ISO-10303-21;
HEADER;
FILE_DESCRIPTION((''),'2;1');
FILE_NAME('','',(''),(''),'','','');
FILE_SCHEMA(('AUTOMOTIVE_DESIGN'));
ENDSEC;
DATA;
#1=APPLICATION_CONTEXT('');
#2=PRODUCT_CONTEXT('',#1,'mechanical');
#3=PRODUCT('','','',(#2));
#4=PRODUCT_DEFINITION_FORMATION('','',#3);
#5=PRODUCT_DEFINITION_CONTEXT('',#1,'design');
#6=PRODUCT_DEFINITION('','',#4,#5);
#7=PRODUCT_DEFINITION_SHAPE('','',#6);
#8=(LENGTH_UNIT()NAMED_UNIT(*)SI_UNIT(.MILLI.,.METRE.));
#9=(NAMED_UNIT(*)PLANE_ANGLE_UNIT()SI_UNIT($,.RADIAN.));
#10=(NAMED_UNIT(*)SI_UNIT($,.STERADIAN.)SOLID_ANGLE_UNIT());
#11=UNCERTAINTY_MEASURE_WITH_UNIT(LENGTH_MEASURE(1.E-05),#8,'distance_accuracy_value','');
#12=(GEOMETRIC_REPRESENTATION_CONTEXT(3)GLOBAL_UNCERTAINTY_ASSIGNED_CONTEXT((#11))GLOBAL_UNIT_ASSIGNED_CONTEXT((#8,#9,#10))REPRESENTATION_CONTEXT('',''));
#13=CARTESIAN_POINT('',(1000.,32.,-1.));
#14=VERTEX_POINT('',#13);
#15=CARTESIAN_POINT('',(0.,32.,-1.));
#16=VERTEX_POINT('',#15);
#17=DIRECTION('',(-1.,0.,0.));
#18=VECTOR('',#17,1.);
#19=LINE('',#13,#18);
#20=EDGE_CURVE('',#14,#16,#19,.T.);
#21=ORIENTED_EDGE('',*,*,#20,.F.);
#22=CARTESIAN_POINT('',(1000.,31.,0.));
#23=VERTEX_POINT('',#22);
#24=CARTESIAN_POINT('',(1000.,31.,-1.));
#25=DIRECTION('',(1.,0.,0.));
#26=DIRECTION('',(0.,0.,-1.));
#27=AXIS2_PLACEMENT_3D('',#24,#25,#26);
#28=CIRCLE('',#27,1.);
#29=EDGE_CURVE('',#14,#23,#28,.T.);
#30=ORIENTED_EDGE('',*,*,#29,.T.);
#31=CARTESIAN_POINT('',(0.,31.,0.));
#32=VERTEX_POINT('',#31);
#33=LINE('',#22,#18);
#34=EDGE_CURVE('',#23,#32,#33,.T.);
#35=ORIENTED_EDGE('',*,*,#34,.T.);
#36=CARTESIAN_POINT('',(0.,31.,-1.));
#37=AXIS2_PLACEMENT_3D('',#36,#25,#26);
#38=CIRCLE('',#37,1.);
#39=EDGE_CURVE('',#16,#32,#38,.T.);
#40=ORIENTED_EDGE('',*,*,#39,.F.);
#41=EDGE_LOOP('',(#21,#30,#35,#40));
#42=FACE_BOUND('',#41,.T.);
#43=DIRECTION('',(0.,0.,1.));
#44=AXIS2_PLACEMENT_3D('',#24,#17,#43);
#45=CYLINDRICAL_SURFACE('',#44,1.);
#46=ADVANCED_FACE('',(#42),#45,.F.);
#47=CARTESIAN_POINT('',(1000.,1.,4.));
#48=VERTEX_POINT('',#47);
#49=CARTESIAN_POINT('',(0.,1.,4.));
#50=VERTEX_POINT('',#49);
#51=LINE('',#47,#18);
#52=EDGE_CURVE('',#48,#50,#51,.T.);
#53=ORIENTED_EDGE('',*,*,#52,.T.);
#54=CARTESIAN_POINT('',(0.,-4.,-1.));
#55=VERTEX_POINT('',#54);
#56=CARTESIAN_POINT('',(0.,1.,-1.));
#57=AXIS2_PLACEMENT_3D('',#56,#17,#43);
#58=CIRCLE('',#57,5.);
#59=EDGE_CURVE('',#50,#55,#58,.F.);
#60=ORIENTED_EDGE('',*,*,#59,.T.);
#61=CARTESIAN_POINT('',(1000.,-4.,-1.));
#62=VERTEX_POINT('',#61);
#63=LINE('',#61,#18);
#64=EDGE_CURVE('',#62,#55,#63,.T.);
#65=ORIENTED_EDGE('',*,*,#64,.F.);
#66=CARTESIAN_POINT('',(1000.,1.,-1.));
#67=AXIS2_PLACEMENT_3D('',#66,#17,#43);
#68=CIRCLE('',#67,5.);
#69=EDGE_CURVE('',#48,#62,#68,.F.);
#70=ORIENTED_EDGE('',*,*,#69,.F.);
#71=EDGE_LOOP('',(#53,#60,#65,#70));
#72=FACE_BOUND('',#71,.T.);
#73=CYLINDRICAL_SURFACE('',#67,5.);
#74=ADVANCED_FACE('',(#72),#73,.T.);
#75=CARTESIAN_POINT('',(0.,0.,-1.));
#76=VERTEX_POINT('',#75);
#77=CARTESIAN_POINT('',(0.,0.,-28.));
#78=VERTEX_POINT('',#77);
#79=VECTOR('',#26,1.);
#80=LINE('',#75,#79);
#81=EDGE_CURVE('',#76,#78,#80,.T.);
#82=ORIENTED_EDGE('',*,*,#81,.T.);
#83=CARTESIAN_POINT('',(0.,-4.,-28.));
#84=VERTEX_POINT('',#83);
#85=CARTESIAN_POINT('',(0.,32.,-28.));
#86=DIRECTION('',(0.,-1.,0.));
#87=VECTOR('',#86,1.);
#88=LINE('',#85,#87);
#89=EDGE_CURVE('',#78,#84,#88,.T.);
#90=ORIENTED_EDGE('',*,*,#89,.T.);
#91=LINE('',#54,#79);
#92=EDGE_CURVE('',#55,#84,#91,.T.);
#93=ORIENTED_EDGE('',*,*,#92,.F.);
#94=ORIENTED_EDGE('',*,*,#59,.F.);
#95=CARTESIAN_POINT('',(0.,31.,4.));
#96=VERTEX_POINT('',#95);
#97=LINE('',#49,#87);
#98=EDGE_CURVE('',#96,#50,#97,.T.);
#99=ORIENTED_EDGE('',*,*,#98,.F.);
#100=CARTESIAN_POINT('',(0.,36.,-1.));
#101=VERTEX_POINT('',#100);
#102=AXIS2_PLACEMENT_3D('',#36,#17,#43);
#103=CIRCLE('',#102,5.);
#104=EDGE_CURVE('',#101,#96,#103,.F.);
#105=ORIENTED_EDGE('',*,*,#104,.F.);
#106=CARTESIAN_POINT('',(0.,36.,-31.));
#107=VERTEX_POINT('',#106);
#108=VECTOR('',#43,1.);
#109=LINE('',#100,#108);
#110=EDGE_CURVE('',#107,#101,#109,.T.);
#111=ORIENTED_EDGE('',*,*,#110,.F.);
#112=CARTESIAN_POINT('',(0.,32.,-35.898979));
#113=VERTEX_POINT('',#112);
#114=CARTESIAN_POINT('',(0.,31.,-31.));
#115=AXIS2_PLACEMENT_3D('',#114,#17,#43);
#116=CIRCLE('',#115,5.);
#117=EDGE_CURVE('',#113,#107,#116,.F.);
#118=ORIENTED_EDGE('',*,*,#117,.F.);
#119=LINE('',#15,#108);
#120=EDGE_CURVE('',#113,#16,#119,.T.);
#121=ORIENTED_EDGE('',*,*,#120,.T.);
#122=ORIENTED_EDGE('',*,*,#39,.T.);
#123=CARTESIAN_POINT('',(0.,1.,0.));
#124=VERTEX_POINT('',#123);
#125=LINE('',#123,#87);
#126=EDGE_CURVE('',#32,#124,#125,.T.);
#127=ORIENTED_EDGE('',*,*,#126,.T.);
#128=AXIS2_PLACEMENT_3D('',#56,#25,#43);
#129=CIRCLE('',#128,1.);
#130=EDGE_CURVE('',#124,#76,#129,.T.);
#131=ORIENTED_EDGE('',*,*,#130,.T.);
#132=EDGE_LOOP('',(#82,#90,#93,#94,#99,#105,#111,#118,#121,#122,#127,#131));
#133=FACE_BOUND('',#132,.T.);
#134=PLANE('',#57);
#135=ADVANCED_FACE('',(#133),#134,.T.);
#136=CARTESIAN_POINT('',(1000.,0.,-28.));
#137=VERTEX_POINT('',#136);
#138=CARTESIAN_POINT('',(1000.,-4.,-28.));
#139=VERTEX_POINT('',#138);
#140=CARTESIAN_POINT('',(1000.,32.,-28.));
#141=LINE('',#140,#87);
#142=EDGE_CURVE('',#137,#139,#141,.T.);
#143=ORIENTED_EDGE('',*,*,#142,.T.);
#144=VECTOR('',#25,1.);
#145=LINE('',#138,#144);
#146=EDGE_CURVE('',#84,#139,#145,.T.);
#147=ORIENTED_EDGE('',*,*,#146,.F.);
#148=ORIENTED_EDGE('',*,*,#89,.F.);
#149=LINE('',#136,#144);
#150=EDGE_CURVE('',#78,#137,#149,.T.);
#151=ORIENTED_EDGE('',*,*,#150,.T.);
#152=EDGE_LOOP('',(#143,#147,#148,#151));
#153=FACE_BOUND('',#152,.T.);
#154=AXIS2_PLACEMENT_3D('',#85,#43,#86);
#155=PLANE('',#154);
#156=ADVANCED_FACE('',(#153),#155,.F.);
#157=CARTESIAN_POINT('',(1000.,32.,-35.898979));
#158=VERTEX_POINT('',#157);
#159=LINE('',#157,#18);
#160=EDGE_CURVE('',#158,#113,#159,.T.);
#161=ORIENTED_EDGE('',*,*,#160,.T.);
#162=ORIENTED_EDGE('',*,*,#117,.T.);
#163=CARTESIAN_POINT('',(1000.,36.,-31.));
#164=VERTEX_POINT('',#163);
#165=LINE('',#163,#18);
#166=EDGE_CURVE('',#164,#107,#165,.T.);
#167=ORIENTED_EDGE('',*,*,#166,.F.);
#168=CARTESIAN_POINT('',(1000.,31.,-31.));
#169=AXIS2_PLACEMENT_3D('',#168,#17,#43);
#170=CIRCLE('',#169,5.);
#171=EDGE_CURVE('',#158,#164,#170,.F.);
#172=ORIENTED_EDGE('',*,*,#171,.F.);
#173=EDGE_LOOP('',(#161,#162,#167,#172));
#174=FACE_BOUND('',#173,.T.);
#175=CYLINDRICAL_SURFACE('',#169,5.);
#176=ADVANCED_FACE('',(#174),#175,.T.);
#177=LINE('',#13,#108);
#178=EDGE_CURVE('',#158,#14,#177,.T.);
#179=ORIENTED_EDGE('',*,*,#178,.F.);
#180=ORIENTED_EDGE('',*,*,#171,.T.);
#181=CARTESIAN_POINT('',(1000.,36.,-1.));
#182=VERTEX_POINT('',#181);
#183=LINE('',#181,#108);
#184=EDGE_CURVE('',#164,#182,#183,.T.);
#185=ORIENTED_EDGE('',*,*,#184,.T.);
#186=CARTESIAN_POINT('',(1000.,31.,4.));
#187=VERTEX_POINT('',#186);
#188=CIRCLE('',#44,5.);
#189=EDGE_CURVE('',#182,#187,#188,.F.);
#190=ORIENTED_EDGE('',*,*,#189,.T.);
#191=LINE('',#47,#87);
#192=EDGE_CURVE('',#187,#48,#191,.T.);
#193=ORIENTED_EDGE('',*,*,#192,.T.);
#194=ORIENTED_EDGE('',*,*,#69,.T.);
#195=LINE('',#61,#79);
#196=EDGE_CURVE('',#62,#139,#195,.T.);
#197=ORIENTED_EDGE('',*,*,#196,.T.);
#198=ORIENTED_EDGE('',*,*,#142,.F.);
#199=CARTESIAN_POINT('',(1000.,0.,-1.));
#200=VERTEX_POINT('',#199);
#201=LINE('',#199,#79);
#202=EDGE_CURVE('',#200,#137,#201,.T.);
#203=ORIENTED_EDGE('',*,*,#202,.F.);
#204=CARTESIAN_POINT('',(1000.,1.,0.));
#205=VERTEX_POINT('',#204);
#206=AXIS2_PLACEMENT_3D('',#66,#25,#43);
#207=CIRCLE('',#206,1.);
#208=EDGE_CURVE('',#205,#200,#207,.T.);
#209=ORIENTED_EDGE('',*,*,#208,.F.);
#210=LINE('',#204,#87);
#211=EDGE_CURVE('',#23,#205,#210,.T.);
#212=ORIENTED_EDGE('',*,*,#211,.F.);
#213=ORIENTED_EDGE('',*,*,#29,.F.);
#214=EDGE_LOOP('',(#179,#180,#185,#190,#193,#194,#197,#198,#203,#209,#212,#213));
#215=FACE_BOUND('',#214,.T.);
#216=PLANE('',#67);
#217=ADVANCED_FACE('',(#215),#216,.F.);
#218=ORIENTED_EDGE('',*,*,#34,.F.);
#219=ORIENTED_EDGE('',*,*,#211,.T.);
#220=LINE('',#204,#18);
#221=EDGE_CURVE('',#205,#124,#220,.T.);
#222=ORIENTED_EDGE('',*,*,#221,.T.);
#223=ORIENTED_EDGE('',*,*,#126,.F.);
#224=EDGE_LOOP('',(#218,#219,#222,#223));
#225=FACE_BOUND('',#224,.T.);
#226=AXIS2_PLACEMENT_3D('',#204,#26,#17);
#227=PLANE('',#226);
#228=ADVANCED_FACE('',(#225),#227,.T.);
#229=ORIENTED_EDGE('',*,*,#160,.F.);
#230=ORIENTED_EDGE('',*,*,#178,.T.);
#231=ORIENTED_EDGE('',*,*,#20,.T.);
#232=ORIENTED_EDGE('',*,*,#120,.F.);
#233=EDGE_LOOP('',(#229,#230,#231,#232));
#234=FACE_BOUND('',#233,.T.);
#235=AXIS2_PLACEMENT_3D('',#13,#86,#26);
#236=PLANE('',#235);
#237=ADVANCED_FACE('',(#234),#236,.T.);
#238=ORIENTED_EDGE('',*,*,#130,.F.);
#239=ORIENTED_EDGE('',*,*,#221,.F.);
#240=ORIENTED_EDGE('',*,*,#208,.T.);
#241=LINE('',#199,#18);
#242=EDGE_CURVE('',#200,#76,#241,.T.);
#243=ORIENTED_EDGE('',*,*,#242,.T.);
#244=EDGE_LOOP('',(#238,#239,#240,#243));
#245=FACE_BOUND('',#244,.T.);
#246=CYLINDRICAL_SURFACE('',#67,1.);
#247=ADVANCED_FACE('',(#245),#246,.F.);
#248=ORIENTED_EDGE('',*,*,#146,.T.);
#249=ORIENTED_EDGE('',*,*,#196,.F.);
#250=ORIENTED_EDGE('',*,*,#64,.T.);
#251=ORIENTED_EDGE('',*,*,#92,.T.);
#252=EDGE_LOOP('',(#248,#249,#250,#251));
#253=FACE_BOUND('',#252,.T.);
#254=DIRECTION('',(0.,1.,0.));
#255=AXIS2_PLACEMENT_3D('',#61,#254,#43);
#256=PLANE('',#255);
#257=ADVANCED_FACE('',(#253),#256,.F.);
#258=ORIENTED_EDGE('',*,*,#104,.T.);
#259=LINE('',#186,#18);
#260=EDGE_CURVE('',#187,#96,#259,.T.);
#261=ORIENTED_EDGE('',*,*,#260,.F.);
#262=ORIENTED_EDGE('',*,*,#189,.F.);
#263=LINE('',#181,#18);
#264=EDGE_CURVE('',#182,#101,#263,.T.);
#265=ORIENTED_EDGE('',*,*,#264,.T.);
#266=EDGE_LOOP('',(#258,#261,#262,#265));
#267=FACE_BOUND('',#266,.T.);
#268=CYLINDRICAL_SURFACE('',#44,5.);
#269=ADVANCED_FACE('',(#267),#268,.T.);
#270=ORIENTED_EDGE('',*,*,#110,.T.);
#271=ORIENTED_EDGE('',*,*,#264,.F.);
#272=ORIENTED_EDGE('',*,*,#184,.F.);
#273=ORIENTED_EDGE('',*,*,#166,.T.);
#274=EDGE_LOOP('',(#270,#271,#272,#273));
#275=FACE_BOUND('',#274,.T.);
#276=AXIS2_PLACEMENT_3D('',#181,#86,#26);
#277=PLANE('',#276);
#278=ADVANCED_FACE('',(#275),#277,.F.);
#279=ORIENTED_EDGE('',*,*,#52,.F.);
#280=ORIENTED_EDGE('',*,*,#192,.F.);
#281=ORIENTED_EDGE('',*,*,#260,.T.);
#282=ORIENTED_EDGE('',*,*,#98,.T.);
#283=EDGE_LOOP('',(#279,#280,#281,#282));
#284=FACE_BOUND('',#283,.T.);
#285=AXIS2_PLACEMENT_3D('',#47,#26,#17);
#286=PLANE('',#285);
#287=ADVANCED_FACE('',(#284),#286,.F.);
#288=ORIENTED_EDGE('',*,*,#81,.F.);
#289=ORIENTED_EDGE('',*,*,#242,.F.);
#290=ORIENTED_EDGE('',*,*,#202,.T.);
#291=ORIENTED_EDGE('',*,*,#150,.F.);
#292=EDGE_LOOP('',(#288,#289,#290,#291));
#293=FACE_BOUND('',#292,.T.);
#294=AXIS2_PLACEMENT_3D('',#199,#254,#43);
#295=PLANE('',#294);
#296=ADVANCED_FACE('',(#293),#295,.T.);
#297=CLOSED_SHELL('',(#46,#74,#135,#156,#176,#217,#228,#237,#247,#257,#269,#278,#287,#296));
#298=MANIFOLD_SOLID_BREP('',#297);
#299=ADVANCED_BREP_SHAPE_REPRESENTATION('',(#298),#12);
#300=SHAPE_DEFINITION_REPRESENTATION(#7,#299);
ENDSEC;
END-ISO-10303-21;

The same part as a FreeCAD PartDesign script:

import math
import FreeCAD as App
import Part
import Sketcher
Q = App.Units.Quantity

doc = App.newDocument("Part")
body = doc.addObject("PartDesign::Body", "Body")

# Sketch on YZ plane
sketch1 = body.newObject("Sketcher::SketchObject", "Sketch")
sketch1.AttachmentSupport = (doc.getObject("YZ_Plane"), [""])
sketch1.MapMode = "FlatFace"
sketch1.addGeometry([
    Part.LineSegment(App.Vector(31, 4, 0), App.Vector(1, 4, 0)),  # 0
    Part.ArcOfCircle(Part.Circle(App.Vector(1, -1, 0), App.Vector(0, 0, 1), 5), math.radians(90), math.radians(180)),  # 1
    Part.LineSegment(App.Vector(-4, -1, 0), App.Vector(-4, -31, 0)),  # 2
    Part.ArcOfCircle(Part.Circle(App.Vector(1, -31, 0), App.Vector(0, 0, 1), 5), math.radians(180), math.radians(270)),  # 3
    Part.LineSegment(App.Vector(1, -36, 0), App.Vector(31, -36, 0)),  # 4
    Part.ArcOfCircle(Part.Circle(App.Vector(31, -31, 0), App.Vector(0, 0, 1), 5), math.radians(-90), math.radians(0)),  # 5
    Part.LineSegment(App.Vector(36, -31, 0), App.Vector(36, -1, 0)),  # 6
    Part.ArcOfCircle(Part.Circle(App.Vector(31, -1, 0), App.Vector(0, 0, 1), 5), math.radians(0), math.radians(90)),  # 7
    Part.LineSegment(App.Vector(1, 0, 0), App.Vector(31, 0, 0)),  # 8
    Part.ArcOfCircle(Part.Circle(App.Vector(31, -1, 0), App.Vector(0, 0, 1), 1), math.radians(0), math.radians(90)),  # 9
    Part.LineSegment(App.Vector(32, -1, 0), App.Vector(32, -31, 0)),  # 10
    Part.ArcOfCircle(Part.Circle(App.Vector(31, -31, 0), App.Vector(0, 0, 1), 1), math.radians(-90), math.radians(0)),  # 11
    Part.LineSegment(App.Vector(31, -32, 0), App.Vector(1, -32, 0)),  # 12
    Part.ArcOfCircle(Part.Circle(App.Vector(1, -31, 0), App.Vector(0, 0, 1), 1), math.radians(-180), math.radians(-90)),  # 13
    Part.LineSegment(App.Vector(0, -31, 0), App.Vector(0, -1, 0)),  # 14
    Part.ArcOfCircle(Part.Circle(App.Vector(1, -1, 0), App.Vector(0, 0, 1), 1), math.radians(90), math.radians(180)),  # 15
], False)
sketch1.addConstraint([
    Sketcher.Constraint("Tangent", 0, 2, 1, 1),
    Sketcher.Constraint("Tangent", 1, 2, 2, 1),
    Sketcher.Constraint("Tangent", 2, 2, 3, 1),
    Sketcher.Constraint("Tangent", 3, 2, 4, 1),
    Sketcher.Constraint("Tangent", 4, 2, 5, 1),
    Sketcher.Constraint("Tangent", 5, 2, 6, 1),
    Sketcher.Constraint("Tangent", 6, 2, 7, 1),
    Sketcher.Constraint("Tangent", 7, 2, 0, 1),
    Sketcher.Constraint("Tangent", 8, 2, 9, 2),
    Sketcher.Constraint("Tangent", 9, 1, 10, 1),
    Sketcher.Constraint("Tangent", 10, 2, 11, 2),
    Sketcher.Constraint("Tangent", 11, 1, 12, 1),
    Sketcher.Constraint("Tangent", 12, 2, 13, 2),
    Sketcher.Constraint("Tangent", 13, 1, 14, 1),
    Sketcher.Constraint("Tangent", 14, 2, 15, 2),
    Sketcher.Constraint("Tangent", 15, 1, 8, 1),
    Sketcher.Constraint("Horizontal", 0),
    Sketcher.Constraint("Vertical", 2),
    Sketcher.Constraint("Horizontal", 4),
    Sketcher.Constraint("Vertical", 6),
    Sketcher.Constraint("Horizontal", 8),
    Sketcher.Constraint("Vertical", 10),
    Sketcher.Constraint("Horizontal", 12),
    Sketcher.Constraint("Vertical", 14),
    Sketcher.Constraint("Coincident", 9, 3, 7, 3),
    Sketcher.Constraint("Coincident", 11, 3, 5, 3),
    Sketcher.Constraint("Coincident", 13, 3, 3, 3),
    Sketcher.Constraint("Equal", 1, 3),
    Sketcher.Constraint("Equal", 3, 5),
    Sketcher.Constraint("Equal", 5, 7),
    Sketcher.Constraint("Equal", 13, 15),
    Sketcher.Constraint("PointOnObject", 8, 2, -1),
    Sketcher.Constraint("PointOnObject", 13, 1, -2),
    Sketcher.Constraint("Equal", 12, 2),
    Sketcher.Constraint("Radius", 1, Q("5 mm")),
    Sketcher.Constraint("Radius", 9, Q("1 mm")),
    Sketcher.Constraint("DistanceX", 0, 2, 0, 1, Q("30 mm")),
])
pad1 = body.newObject("PartDesign::Pad", "Pad")
pad1.Profile = sketch1
pad1.Length = 1000

# Sketch on YZ plane
sketch2 = body.newObject("Sketcher::SketchObject", "Sketch001")
sketch2.AttachmentSupport = (doc.getObject("YZ_Plane"), [""])
sketch2.MapMode = "FlatFace"
sketch2.AttachmentOffset = App.Placement(App.Vector(0, 0, 1000), App.Rotation())
sketch2.addGeometry([
    Part.LineSegment(App.Vector(32, -28, 0), App.Vector(-4.536949, -28, 0)),
    Part.LineSegment(App.Vector(-4.536949, -28, 0), App.Vector(-4.536949, -36.555369, 0)),
    Part.LineSegment(App.Vector(-4.536949, -36.555369, 0), App.Vector(32, -36.555369, 0)),
    Part.LineSegment(App.Vector(32, -36.555369, 0), App.Vector(32, -28, 0)),
], False)
sketch2.addConstraint([
    Sketcher.Constraint("Coincident", 0, 2, 1, 1),
    Sketcher.Constraint("Coincident", 1, 2, 2, 1),
    Sketcher.Constraint("Coincident", 2, 2, 3, 1),
    Sketcher.Constraint("Coincident", 3, 2, 0, 1),
    Sketcher.Constraint("Horizontal", 0),
    Sketcher.Constraint("Vertical", 1),
    Sketcher.Constraint("Horizontal", 2),
    Sketcher.Constraint("Vertical", 3),
    Sketcher.Constraint("DistanceY", 0, 2, -1, 1, Q("28 mm")),
    Sketcher.Constraint("DistanceX", -1, 1, 2, 2, Q("32 mm")),
    Sketcher.Constraint("DistanceX", 0, 2, 0, 1, Q("36.536949 mm")),
    Sketcher.Constraint("DistanceY", 1, 2, 1, 1, Q("8.555369 mm")),
])
pocket1 = body.newObject("PartDesign::Pocket", "Pocket")
pocket1.Profile = sketch2
pocket1.Type = "ThroughAll"

doc.recompute()
